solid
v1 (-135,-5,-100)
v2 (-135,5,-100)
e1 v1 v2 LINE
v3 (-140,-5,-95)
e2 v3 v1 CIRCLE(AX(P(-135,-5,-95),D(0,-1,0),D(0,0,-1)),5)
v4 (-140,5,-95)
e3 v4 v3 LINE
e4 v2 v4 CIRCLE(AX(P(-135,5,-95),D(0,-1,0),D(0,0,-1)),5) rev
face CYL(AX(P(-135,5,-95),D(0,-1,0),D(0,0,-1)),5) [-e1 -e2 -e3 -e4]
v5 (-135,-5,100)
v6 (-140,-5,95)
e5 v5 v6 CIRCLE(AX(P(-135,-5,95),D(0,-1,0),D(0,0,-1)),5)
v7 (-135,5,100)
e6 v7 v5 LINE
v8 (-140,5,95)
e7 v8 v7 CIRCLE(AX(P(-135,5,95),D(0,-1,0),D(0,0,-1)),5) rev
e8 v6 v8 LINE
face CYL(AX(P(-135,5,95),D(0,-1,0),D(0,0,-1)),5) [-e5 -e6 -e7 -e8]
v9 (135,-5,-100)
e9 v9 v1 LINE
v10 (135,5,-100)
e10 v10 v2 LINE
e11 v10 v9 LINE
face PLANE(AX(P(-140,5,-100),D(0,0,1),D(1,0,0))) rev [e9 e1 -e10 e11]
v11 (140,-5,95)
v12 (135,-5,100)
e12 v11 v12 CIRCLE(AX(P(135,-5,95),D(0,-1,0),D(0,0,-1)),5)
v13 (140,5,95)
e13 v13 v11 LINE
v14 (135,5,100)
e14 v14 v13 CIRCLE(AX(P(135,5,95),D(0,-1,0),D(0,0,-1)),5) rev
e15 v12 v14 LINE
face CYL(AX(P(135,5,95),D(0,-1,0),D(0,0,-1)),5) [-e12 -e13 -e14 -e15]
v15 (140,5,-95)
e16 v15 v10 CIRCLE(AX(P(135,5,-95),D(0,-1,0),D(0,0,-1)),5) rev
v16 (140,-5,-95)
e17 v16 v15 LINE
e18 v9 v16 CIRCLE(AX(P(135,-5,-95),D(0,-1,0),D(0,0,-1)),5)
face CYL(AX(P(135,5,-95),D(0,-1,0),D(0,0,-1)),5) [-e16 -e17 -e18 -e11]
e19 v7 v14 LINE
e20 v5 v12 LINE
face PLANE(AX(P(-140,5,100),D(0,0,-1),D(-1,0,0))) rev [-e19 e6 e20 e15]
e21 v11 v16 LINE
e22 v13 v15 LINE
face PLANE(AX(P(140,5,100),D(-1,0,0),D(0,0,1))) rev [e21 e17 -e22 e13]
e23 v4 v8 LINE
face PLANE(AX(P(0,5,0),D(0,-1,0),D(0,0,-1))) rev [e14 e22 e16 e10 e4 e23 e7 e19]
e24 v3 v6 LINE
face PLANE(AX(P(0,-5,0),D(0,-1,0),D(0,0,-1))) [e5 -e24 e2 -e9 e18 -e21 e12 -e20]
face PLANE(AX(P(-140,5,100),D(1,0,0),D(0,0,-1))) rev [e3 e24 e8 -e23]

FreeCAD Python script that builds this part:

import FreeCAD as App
import Part
import Sketcher

V = App.Vector


def edges_at(feature, points):
    """Names of the edges that pass closest to the given points."""
    edges = feature.Shape.Edges
    near = lambda p: min(range(len(edges)), key=lambda i: edges[i].distToShape(Part.Vertex(*p))[0])
    return sorted({f"Edge{near(p) + 1}" for p in points})

doc = App.newDocument("Part")
body = doc.addObject("PartDesign::Body", "Body")

sketch1 = body.newObject("Sketcher::SketchObject", "Sketch")
sketch1.AttachmentSupport = (doc.getObject("XZ_Plane"), [""])
sketch1.MapMode = "FlatFace"
sketch1.addGeometry([
    Part.LineSegment(V(-140, -100, 0), V(-140, 100, 0)),
    Part.LineSegment(V(-140, 100, 0), V(140, 100, 0)),
    Part.LineSegment(V(140, 100, 0), V(140, -100, 0)),
    Part.LineSegment(V(140, -100, 0), V(-140, -100, 0)),
], False)
sketch1.addConstraint([
    Sketcher.Constraint("Coincident", 0, 2, 1, 1),
    Sketcher.Constraint("Coincident", 1, 2, 2, 1),
    Sketcher.Constraint("Coincident", 2, 2, 3, 1),
    Sketcher.Constraint("Coincident", 3, 2, 0, 1),
    Sketcher.Constraint("Vertical", 0),
    Sketcher.Constraint("Horizontal", 1),
    Sketcher.Constraint("Vertical", 2),
    Sketcher.Constraint("Horizontal", 3),
    Sketcher.Constraint("Symmetric", 0, 2, 2, 2, -1, 1),
    Sketcher.Constraint("DistanceX", 1, 1, 1, 2, 280.0),
    Sketcher.Constraint("DistanceY", 0, 1, 0, 2, 200.0),
])
pad1 = body.newObject("PartDesign::Pad", "Pad")
pad1.Profile = sketch1
pad1.Length = 10
pad1.Midplane = True
doc.recompute()

fillet = body.newObject("PartDesign::Fillet", "Fillet")
fillet.Base = (pad1, edges_at(pad1, [
    (140, 0, 100),
    (-140, 0, 100),
    (-140, 0, -100),
    (140, 0, -100),
]))
fillet.Radius = 5

doc.recompute()
